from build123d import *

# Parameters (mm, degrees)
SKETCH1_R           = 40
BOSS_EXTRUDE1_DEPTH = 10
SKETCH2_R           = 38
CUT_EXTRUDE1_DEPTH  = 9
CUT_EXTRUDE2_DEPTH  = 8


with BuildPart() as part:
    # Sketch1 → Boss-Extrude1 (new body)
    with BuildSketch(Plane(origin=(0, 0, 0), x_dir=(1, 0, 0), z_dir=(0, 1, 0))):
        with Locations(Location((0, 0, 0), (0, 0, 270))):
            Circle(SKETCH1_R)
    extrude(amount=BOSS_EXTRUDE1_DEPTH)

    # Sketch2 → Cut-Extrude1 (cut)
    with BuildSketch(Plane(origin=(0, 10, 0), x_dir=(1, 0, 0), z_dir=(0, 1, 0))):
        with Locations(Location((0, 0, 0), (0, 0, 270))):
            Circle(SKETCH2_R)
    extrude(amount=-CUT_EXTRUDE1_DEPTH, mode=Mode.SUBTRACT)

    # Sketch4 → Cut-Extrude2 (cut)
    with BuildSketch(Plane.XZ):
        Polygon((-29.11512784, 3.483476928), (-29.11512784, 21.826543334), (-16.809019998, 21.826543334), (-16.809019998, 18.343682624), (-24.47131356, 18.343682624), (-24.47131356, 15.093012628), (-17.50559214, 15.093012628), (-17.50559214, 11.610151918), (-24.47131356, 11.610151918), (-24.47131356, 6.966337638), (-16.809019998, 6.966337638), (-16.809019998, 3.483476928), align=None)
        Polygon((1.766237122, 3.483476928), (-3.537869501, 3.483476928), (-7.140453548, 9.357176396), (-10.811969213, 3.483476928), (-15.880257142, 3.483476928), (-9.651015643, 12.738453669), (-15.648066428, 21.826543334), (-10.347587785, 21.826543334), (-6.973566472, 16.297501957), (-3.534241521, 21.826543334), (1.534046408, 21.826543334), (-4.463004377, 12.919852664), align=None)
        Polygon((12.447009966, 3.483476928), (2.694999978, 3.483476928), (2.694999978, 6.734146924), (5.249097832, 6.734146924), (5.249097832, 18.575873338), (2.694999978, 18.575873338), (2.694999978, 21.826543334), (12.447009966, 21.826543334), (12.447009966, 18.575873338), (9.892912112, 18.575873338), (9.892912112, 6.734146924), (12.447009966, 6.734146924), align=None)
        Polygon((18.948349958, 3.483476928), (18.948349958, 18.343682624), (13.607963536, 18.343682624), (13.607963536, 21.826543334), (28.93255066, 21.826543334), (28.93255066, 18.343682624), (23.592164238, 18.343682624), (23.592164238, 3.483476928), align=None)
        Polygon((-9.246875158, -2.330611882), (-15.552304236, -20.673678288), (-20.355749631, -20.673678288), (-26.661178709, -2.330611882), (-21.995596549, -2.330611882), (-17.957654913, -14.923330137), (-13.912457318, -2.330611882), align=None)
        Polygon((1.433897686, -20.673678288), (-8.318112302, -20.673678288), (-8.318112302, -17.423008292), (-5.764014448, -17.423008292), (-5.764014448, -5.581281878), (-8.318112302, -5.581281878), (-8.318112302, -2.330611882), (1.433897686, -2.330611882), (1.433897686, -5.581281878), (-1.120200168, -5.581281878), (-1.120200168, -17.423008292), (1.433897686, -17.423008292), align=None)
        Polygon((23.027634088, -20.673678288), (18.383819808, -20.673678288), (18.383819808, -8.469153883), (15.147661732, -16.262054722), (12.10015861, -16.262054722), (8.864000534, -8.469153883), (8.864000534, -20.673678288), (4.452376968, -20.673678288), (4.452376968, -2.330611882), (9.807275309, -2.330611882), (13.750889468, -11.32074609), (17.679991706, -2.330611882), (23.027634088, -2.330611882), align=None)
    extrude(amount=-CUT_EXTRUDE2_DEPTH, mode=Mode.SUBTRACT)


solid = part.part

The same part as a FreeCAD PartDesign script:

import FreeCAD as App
import Part
import Sketcher
from FreeCAD import Vector
Q = App.Units.Quantity

doc = App.newDocument("Part")
body = doc.addObject("PartDesign::Body", "Body")

sketch1 = body.newObject("Sketcher::SketchObject", "Sketch")
sketch1.AttachmentSupport = (doc.getObject("XZ_Plane"), [""])
sketch1.MapMode = "FlatFace"
sketch1.addGeometry(Part.Circle(Vector(0, 0, 0), Vector(0, 0, 1), 40), False)
sketch1.addConstraint([
    Sketcher.Constraint("Coincident", 0, 3, -1, 1),
    Sketcher.Constraint("Diameter", 0, Q("80 mm")),
])
pad1 = body.newObject("PartDesign::Pad", "Pad")
pad1.Profile = sketch1
pad1.Length = 10
pad1.Reversed = True

sketch2 = body.newObject("Sketcher::SketchObject", "Sketch001")
sketch2.AttachmentSupport = (doc.getObject("XZ_Plane"), [""])
sketch2.MapMode = "FlatFace"
sketch2.AttachmentOffset = App.Placement(Vector(0, 0, -10), App.Rotation())
sketch2.addGeometry(Part.Circle(Vector(0, 0, 0), Vector(0, 0, 1), 38), False)
sketch2.addConstraint([
    Sketcher.Constraint("Coincident", 0, 3, -1, 1),
    Sketcher.Constraint("Diameter", 0, Q("76 mm")),
])
pocket1 = body.newObject("PartDesign::Pocket", "Pocket")
pocket1.Profile = sketch2
pocket1.Length = 9
pocket1.Reversed = True

sketch3 = body.newObject("Sketcher::SketchObject", "Sketch002")
sketch3.AttachmentSupport = (doc.getObject("XZ_Plane"), [""])
sketch3.MapMode = "FlatFace"
sketch3.addGeometry([
    Part.LineSegment(Vector(-29.1, 21.8, 0), Vector(-29.1, 3.5, 0)),
    Part.LineSegment(Vector(-29.1, 3.5, 0), Vector(-16.8, 3.5, 0)),
    Part.LineSegment(Vector(-16.8, 3.5, 0), Vector(-16.8, 7, 0)),
    Part.LineSegment(Vector(-16.8, 7, 0), Vector(-24.5, 7, 0)),
    Part.LineSegment(Vector(-24.5, 7, 0), Vector(-24.5, 11.6, 0)),
    Part.LineSegment(Vector(-24.5, 11.6, 0), Vector(-17.5, 11.6, 0)),
    Part.LineSegment(Vector(-17.5, 11.6, 0), Vector(-17.5, 15.1, 0)),
    Part.LineSegment(Vector(-17.5, 15.1, 0), Vector(-24.5, 15.1, 0)),
    Part.LineSegment(Vector(-24.5, 15.1, 0), Vector(-24.5, 18.3, 0)),
    Part.LineSegment(Vector(-24.5, 18.3, 0), Vector(-16.8, 18.3, 0)),
    Part.LineSegment(Vector(-16.8, 18.3, 0), Vector(-16.8, 21.8, 0)),
    Part.LineSegment(Vector(-16.8, 21.8, 0), Vector(-29.1, 21.8, 0)),
    Part.LineSegment(Vector(-3.5, 3.5, 0), Vector(1.8, 3.5, 0)),
    Part.LineSegment(Vector(1.8, 3.5, 0), Vector(-4.5, 12.9, 0)),
    Part.LineSegment(Vector(-4.5, 12.9, 0), Vector(1.5, 21.8, 0)),
    Part.LineSegment(Vector(1.5, 21.8, 0), Vector(-3.5, 21.8, 0)),
    Part.LineSegment(Vector(-3.5, 21.8, 0), Vector(-7, 16.3, 0)),
    Part.LineSegment(Vector(-7, 16.3, 0), Vector(-10.3, 21.8, 0)),
    Part.LineSegment(Vector(-10.3, 21.8, 0), Vector(-15.6, 21.8, 0)),
    Part.LineSegment(Vector(-15.6, 21.8, 0), Vector(-9.7, 12.7, 0)),
    Part.LineSegment(Vector(-9.7, 12.7, 0), Vector(-15.9, 3.5, 0)),
    Part.LineSegment(Vector(-15.9, 3.5, 0), Vector(-10.8, 3.5, 0)),
    Part.LineSegment(Vector(-10.8, 3.5, 0), Vector(-7.1, 9.4, 0)),
    Part.LineSegment(Vector(-7.1, 9.4, 0), Vector(-3.5, 3.5, 0)),
    Part.LineSegment(Vector(2.7, 3.5, 0), Vector(12.4, 3.5, 0)),
    Part.LineSegment(Vector(12.4, 3.5, 0), Vector(12.4, 6.7, 0)),
    Part.LineSegment(Vector(12.4, 6.7, 0), Vector(9.9, 6.7, 0)),
    Part.LineSegment(Vector(9.9, 6.7, 0), Vector(9.9, 18.6, 0)),
    Part.LineSegment(Vector(9.9, 18.6, 0), Vector(12.4, 18.6, 0)),
    Part.LineSegment(Vector(12.4, 18.6, 0), Vector(12.4, 21.8, 0)),
    Part.LineSegment(Vector(12.4, 21.8, 0), Vector(2.7, 21.8, 0)),
    Part.LineSegment(Vector(2.7, 21.8, 0), Vector(2.7, 18.6, 0)),
    Part.LineSegment(Vector(2.7, 18.6, 0), Vector(5.2, 18.6, 0)),
    Part.LineSegment(Vector(5.2, 18.6, 0), Vector(5.2, 6.7, 0)),
    Part.LineSegment(Vector(5.2, 6.7, 0), Vector(2.7, 6.7, 0)),
    Part.LineSegment(Vector(2.7, 6.7, 0), Vector(2.7, 3.5, 0)),
    Part.LineSegment(Vector(18.9, 18.3, 0), Vector(18.9, 3.5, 0)),
    Part.LineSegment(Vector(18.9, 3.5, 0), Vector(23.6, 3.5, 0)),
    Part.LineSegment(Vector(23.6, 3.5, 0), Vector(23.6, 18.3, 0)),
    Part.LineSegment(Vector(23.6, 18.3, 0), Vector(28.9, 18.3, 0)),
    Part.LineSegment(Vector(28.9, 18.3, 0), Vector(28.9, 21.8, 0)),
    Part.LineSegment(Vector(28.9, 21.8, 0), Vector(13.6, 21.8, 0)),
    Part.LineSegment(Vector(13.6, 21.8, 0), Vector(13.6, 18.3, 0)),
    Part.LineSegment(Vector(13.6, 18.3, 0), Vector(18.9, 18.3, 0)),
    Part.LineSegment(Vector(-15.6, -20.7, 0), Vector(-9.2, -2.3, 0)),
    Part.LineSegment(Vector(-9.2, -2.3, 0), Vector(-13.9, -2.3, 0)),
    Part.LineSegment(Vector(-13.9, -2.3, 0), Vector(-18, -14.9, 0)),
    Part.LineSegment(Vector(-18, -14.9, 0), Vector(-22, -2.3, 0)),
    Part.LineSegment(Vector(-22, -2.3, 0), Vector(-26.7, -2.3, 0)),
    Part.LineSegment(Vector(-26.7, -2.3, 0), Vector(-20.4, -20.7, 0)),
    Part.LineSegment(Vector(-20.4, -20.7, 0), Vector(-15.6, -20.7, 0)),
    Part.LineSegment(Vector(-8.3, -20.7, 0), Vector(1.4, -20.7, 0)),
    Part.LineSegment(Vector(1.4, -20.7, 0), Vector(1.4, -17.4, 0)),
    Part.LineSegment(Vector(1.4, -17.4, 0), Vector(-1.1, -17.4, 0)),
    Part.LineSegment(Vector(-1.1, -17.4, 0), Vector(-1.1, -5.6, 0)),
    Part.LineSegment(Vector(-1.1, -5.6, 0), Vector(1.4, -5.6, 0)),
    Part.LineSegment(Vector(1.4, -5.6, 0), Vector(1.4, -2.3, 0)),
    Part.LineSegment(Vector(1.4, -2.3, 0), Vector(-8.3, -2.3, 0)),
    Part.LineSegment(Vector(-8.3, -2.3, 0), Vector(-8.3, -5.6, 0)),
    Part.LineSegment(Vector(-8.3, -5.6, 0), Vector(-5.8, -5.6, 0)),
    Part.LineSegment(Vector(-5.8, -5.6, 0), Vector(-5.8, -17.4, 0)),
    Part.LineSegment(Vector(-5.8, -17.4, 0), Vector(-8.3, -17.4, 0)),
    Part.LineSegment(Vector(-8.3, -17.4, 0), Vector(-8.3, -20.7, 0)),
    Part.LineSegment(Vector(18.4, -20.7, 0), Vector(23, -20.7, 0)),
    Part.LineSegment(Vector(23, -20.7, 0), Vector(23, -2.3, 0)),
    Part.LineSegment(Vector(23, -2.3, 0), Vector(17.7, -2.3, 0)),
    Part.LineSegment(Vector(17.7, -2.3, 0), Vector(13.8, -11.3, 0)),
    Part.LineSegment(Vector(13.8, -11.3, 0), Vector(9.8, -2.3, 0)),
    Part.LineSegment(Vector(9.8, -2.3, 0), Vector(4.5, -2.3, 0)),
    Part.LineSegment(Vector(4.5, -2.3, 0), Vector(4.5, -20.7, 0)),
    Part.LineSegment(Vector(4.5, -20.7, 0), Vector(8.9, -20.7, 0)),
    Part.LineSegment(Vector(8.9, -20.7, 0), Vector(8.9, -8.5, 0)),
    Part.LineSegment(Vector(8.9, -8.5, 0), Vector(12.1, -16.3, 0)),
    Part.LineSegment(Vector(12.1, -16.3, 0), Vector(15.1, -16.3, 0)),
    Part.LineSegment(Vector(15.1, -16.3, 0), Vector(18.4, -8.5, 0)),
    Part.LineSegment(Vector(18.4, -8.5, 0), Vector(18.4, -20.7, 0)),
], False)
sketch3.addConstraint([
    Sketcher.Constraint("Coincident", 0, 2, 1, 1),
    Sketcher.Constraint("Coincident", 1, 2, 2, 1),
    Sketcher.Constraint("Coincident", 2, 2, 3, 1),
    Sketcher.Constraint("Coincident", 3, 2, 4, 1),
    Sketcher.Constraint("Coincident", 4, 2, 5, 1),
    Sketcher.Constraint("Coincident", 5, 2, 6, 1),
    Sketcher.Constraint("Coincident", 6, 2, 7, 1),
    Sketcher.Constraint("Coincident", 7, 2, 8, 1),
    Sketcher.Constraint("Coincident", 8, 2, 9, 1),
    Sketcher.Constraint("Coincident", 9, 2, 10, 1),
    Sketcher.Constraint("Coincident", 10, 2, 11, 1),
    Sketcher.Constraint("Coincident", 11, 2, 0, 1),
    Sketcher.Constraint("Coincident", 12, 2, 13, 1),
    Sketcher.Constraint("Coincident", 13, 2, 14, 1),
    Sketcher.Constraint("Coincident", 14, 2, 15, 1),
    Sketcher.Constraint("Coincident", 15, 2, 16, 1),
    Sketcher.Constraint("Coincident", 16, 2, 17, 1),
    Sketcher.Constraint("Coincident", 17, 2, 18, 1),
    Sketcher.Constraint("Coincident", 18, 2, 19, 1),
    Sketcher.Constraint("Coincident", 19, 2, 20, 1),
    Sketcher.Constraint("Coincident", 20, 2, 21, 1),
    Sketcher.Constraint("Coincident", 21, 2, 22, 1),
    Sketcher.Constraint("Coincident", 22, 2, 23, 1),
    Sketcher.Constraint("Coincident", 23, 2, 12, 1),
    Sketcher.Constraint("Coincident", 24, 2, 25, 1),
    Sketcher.Constraint("Coincident", 25, 2, 26, 1),
    Sketcher.Constraint("Coincident", 26, 2, 27, 1),
    Sketcher.Constraint("Coincident", 27, 2, 28, 1),
    Sketcher.Constraint("Coincident", 28, 2, 29, 1),
    Sketcher.Constraint("Coincident", 29, 2, 30, 1),
    Sketcher.Constraint("Coincident", 30, 2, 31, 1),
    Sketcher.Constraint("Coincident", 31, 2, 32, 1),
    Sketcher.Constraint("Coincident", 32, 2, 33, 1),
    Sketcher.Constraint("Coincident", 33, 2, 34, 1),
    Sketcher.Constraint("Coincident", 34, 2, 35, 1),
    Sketcher.Constraint("Coincident", 35, 2, 24, 1),
    Sketcher.Constraint("Coincident", 36, 2, 37, 1),
    Sketcher.Constraint("Coincident", 37, 2, 38, 1),
    Sketcher.Constraint("Coincident", 38, 2, 39, 1),
    Sketcher.Constraint("Coincident", 39, 2, 40, 1),
    Sketcher.Constraint("Coincident", 40, 2, 41, 1),
    Sketcher.Constraint("Coincident", 41, 2, 42, 1),
    Sketcher.Constraint("Coincident", 42, 2, 43, 1),
    Sketcher.Constraint("Coincident", 43, 2, 36, 1),
    Sketcher.Constraint("Coincident", 44, 2, 45, 1),
    Sketcher.Constraint("Coincident", 45, 2, 46, 1),
    Sketcher.Constraint("Coincident", 46, 2, 47, 1),
    Sketcher.Constraint("Coincident", 47, 2, 48, 1),
    Sketcher.Constraint("Coincident", 48, 2, 49, 1),
    Sketcher.Constraint("Coincident", 49, 2, 50, 1),
    Sketcher.Constraint("Coincident", 50, 2, 44, 1),
    Sketcher.Constraint("Coincident", 51, 2, 52, 1),
    Sketcher.Constraint("Coincident", 52, 2, 53, 1),
    Sketcher.Constraint("Coincident", 53, 2, 54, 1),
    Sketcher.Constraint("Coincident", 54, 2, 55, 1),
    Sketcher.Constraint("Coincident", 55, 2, 56, 1),
    Sketcher.Constraint("Coincident", 56, 2, 57, 1),
    Sketcher.Constraint("Coincident", 57, 2, 58, 1),
    Sketcher.Constraint("Coincident", 58, 2, 59, 1),
    Sketcher.Constraint("Coincident", 59, 2, 60, 1),
    Sketcher.Constraint("Coincident", 60, 2, 61, 1),
    Sketcher.Constraint("Coincident", 61, 2, 62, 1),
    Sketcher.Constraint("Coincident", 62, 2, 51, 1),
    Sketcher.Constraint("Coincident", 63, 2, 64, 1),
    Sketcher.Constraint("Coincident", 64, 2, 65, 1),
    Sketcher.Constraint("Coincident", 65, 2, 66, 1),
    Sketcher.Constraint("Coincident", 66, 2, 67, 1),
    Sketcher.Constraint("Coincident", 67, 2, 68, 1),
    Sketcher.Constraint("Coincident", 68, 2, 69, 1),
    Sketcher.Constraint("Coincident", 69, 2, 70, 1),
    Sketcher.Constraint("Coincident", 70, 2, 71, 1),
    Sketcher.Constraint("Coincident", 71, 2, 72, 1),
    Sketcher.Constraint("Coincident", 72, 2, 73, 1),
    Sketcher.Constraint("Coincident", 73, 2, 74, 1),
    Sketcher.Constraint("Coincident", 74, 2, 75, 1),
    Sketcher.Constraint("Coincident", 75, 2, 63, 1),
    Sketcher.Constraint("Vertical", 0),
    Sketcher.Constraint("Horizontal", 1),
    Sketcher.Constraint("Vertical", 2),
    Sketcher.Constraint("Horizontal", 3),
    Sketcher.Constraint("Vertical", 4),
    Sketcher.Constraint("Horizontal", 5),
    Sketcher.Constraint("Vertical", 6),
    Sketcher.Constraint("Horizontal", 7),
    Sketcher.Constraint("Vertical", 8),
    Sketcher.Constraint("Horizontal", 9),
    Sketcher.Constraint("Vertical", 10),
    Sketcher.Constraint("Horizontal", 11),
    Sketcher.Constraint("Horizontal", 12),
    Sketcher.Constraint("Horizontal", 15),
    Sketcher.Constraint("Horizontal", 18),
    Sketcher.Constraint("Horizontal", 21),
    Sketcher.Constraint("Horizontal", 24),
    Sketcher.Constraint("Vertical", 25),
    Sketcher.Constraint("Horizontal", 26),
    Sketcher.Constraint("Vertical", 27),
    Sketcher.Constraint("Horizontal", 28),
    Sketcher.Constraint("Vertical", 29),
    Sketcher.Constraint("Horizontal", 30),
    Sketcher.Constraint("Vertical", 31),
    Sketcher.Constraint("Horizontal", 32),
    Sketcher.Constraint("Vertical", 33),
    Sketcher.Constraint("Horizontal", 34),
    Sketcher.Constraint("Vertical", 35),
    Sketcher.Constraint("Vertical", 36),
    Sketcher.Constraint("Horizontal", 37),
    Sketcher.Constraint("Vertical", 38),
    Sketcher.Constraint("Horizontal", 39),
    Sketcher.Constraint("Vertical", 40),
    Sketcher.Constraint("Horizontal", 41),
    Sketcher.Constraint("Vertical", 42),
    Sketcher.Constraint("Horizontal", 43),
    Sketcher.Constraint("Horizontal", 45),
    Sketcher.Constraint("Horizontal", 48),
    Sketcher.Constraint("Horizontal", 50),
    Sketcher.Constraint("Horizontal", 51),
    Sketcher.Constraint("Vertical", 52),
    Sketcher.Constraint("Horizontal", 53),
    Sketcher.Constraint("Vertical", 54),
    Sketcher.Constraint("Horizontal", 55),
    Sketcher.Constraint("Vertical", 56),
    Sketcher.Constraint("Horizontal", 57),
    Sketcher.Constraint("Vertical", 58),
    Sketcher.Constraint("Horizontal", 59),
    Sketcher.Constraint("Vertical", 60),
    Sketcher.Constraint("Horizontal", 61),
    Sketcher.Constraint("Vertical", 62),
    Sketcher.Constraint("Horizontal", 63),
    Sketcher.Constraint("Vertical", 64),
    Sketcher.Constraint("Horizontal", 65),
    Sketcher.Constraint("Horizontal", 68),
    Sketcher.Constraint("Vertical", 69),
    Sketcher.Constraint("Horizontal", 70),
    Sketcher.Constraint("Vertical", 71),
    Sketcher.Constraint("Horizontal", 73),
    Sketcher.Constraint("Vertical", 75),
    Sketcher.Constraint("Horizontal", 1, 2, 12, 2),
    Sketcher.Constraint("Horizontal", 11, 2, 14, 2),
    Sketcher.Constraint("Horizontal", 15, 2, 17, 2),
    Sketcher.Constraint("Horizontal", 12, 2, 20, 2),
    Sketcher.Constraint("Horizontal", 23, 2, 24, 2),
    Sketcher.Constraint("Horizontal", 18, 2, 29, 2),
    Sketcher.Constraint("Horizontal", 28, 2, 31, 2),
    Sketcher.Constraint("Horizontal", 26, 2, 33, 2),
    Sketcher.Constraint("Horizontal", 35, 2, 36, 2),
    Sketcher.Constraint("Horizontal", 9, 2, 38, 2),
    Sketcher.Constraint("Horizontal", 30, 2, 40, 2),
    Sketcher.Constraint("Horizontal", 39, 2, 42, 2),
    Sketcher.Constraint("Horizontal", 45, 2, 47, 2),
    Sketcher.Constraint("Horizontal", 50, 2, 51, 2),
    Sketcher.Constraint("Horizontal", 48, 2, 56, 2),
    Sketcher.Constraint("Horizontal", 55, 2, 58, 2),
    Sketcher.Constraint("Horizontal", 53, 2, 60, 2),
    Sketcher.Constraint("Horizontal", 62, 2, 63, 2),
    Sketcher.Constraint("Horizontal", 57, 2, 64, 2),
    Sketcher.Constraint("Horizontal", 65, 2, 67, 2),
    Sketcher.Constraint("Horizontal", 63, 2, 69, 2),
    Sketcher.Constraint("Horizontal", 71, 2, 74, 2),
    Sketcher.Constraint("Vertical", 4, 2, 7, 2),
    Sketcher.Constraint("Vertical", 2, 2, 9, 2),
    Sketcher.Constraint("Vertical", 25, 2, 28, 2),
    Sketcher.Constraint("Vertical", 31, 2, 34, 2),
    Sketcher.Constraint("Vertical", 52, 2, 55, 2),
    Sketcher.Constraint("Vertical", 58, 2, 61, 2),
    Sketcher.Constraint("Equal", 15, 21),
    Sketcher.Constraint("Equal", 28, 32),
    Sketcher.Constraint("Equal", 39, 43),
    Sketcher.Constraint("Equal", 45, 48),
    Sketcher.Constraint("Equal", 30, 51),
    Sketcher.Constraint("Equal", 34, 53),
    Sketcher.Constraint("Equal", 55, 59),
    Sketcher.Constraint("Equal", 37, 63),
    Sketcher.Constraint("Equal", 63, 4),
    Sketcher.Constraint("Equal", 2, 6),
    Sketcher.Constraint("Equal", 6, 10),
    Sketcher.Constraint("Equal", 8, 25),
    Sketcher.Constraint("Equal", 25, 29),
    Sketcher.Constraint("Equal", 35, 52),
    Sketcher.Constraint("Equal", 33, 54),
    Sketcher.Constraint("Equal", 52, 56),
    Sketcher.Constraint("Equal", 44, 49),
    Sketcher.Constraint("Equal", 72, 74),
    Sketcher.Constraint("DistanceX", 68, 2, 68, 1, Q("5.354898 mm")),
    Sketcher.Constraint("DistanceX", -1, 1, 30, 2, Q("2.695 mm")),
    Sketcher.Constraint("DistanceX", -1, 1, 70, 2, Q("8.864001 mm")),
    Sketcher.Constraint("DistanceX", 5, 1, 5, 2, Q("6.965721 mm")),
    Sketcher.Constraint("DistanceX", 18, 2, 18, 1, Q("5.300479 mm")),
    Sketcher.Constraint("DistanceX", 24, 1, 24, 2, Q("9.75201 mm")),
    Sketcher.Constraint("DistanceY", 2, 1, 2, 2, Q("3.482861 mm")),
    Sketcher.Constraint("DistanceY", 8, 1, 8, 2, Q("3.25067 mm")),
    Sketcher.Constraint("DistanceY", -1, 1, 16, 2, Q("16.297502 mm")),
    Sketcher.Constraint("DistanceX", 53, 2, -1, 1, Q("1.1202 mm")),
    Sketcher.Constraint("Distance", 16, Q("6.511471 mm")),
    Sketcher.Constraint("Distance", 44, Q("19.39656 mm")),
    Sketcher.Constraint("Distance", 72, Q("8.438129 mm")),
    Sketcher.Constraint("DistanceX", 1, 1, 1, 2, Q("12.306108 mm")),
    Sketcher.Constraint("DistanceX", 3, 2, 3, 1, Q("7.662294 mm")),
    Sketcher.Constraint("DistanceX", 12, 1, 12, 2, Q("5.304107 mm")),
    Sketcher.Constraint("DistanceX", 15, 2, 15, 1, Q("5.068288 mm")),
    Sketcher.Constraint("DistanceX", 26, 2, 26, 1, Q("2.554098 mm")),
    Sketcher.Constraint("DistanceX", 37, 1, 37, 2, Q("4.643814 mm")),
    Sketcher.Constraint("DistanceX", 39, 1, 39, 2, Q("5.340386 mm")),
    Sketcher.Constraint("DistanceX", 45, 2, 45, 1, Q("4.665582 mm")),
    Sketcher.Constraint("DistanceX", 50, 1, 50, 2, Q("4.803445 mm")),
    Sketcher.Constraint("DistanceX", 65, 2, 65, 1, Q("5.347642 mm")),
    Sketcher.Constraint("DistanceX", 70, 1, 70, 2, Q("4.411624 mm")),
    Sketcher.Constraint("DistanceX", 73, 1, 73, 2, Q("3.047503 mm")),
    Sketcher.Constraint("DistanceY", 71, 1, 71, 2, Q("12.204524 mm")),
    Sketcher.Constraint("DistanceX", 1, 2, -1, 1, Q("16.80902 mm")),
    Sketcher.Constraint("DistanceY", -1, 1, 4, 2, Q("11.610152 mm")),
    Sketcher.Constraint("DistanceX", 15, 2, -1, 1, Q("3.534242 mm")),
    Sketcher.Constraint("DistanceX", 21, 2, -1, 1, Q("10.811969 mm")),
    Sketcher.Constraint("DistanceX", 23, 2, -1, 1, Q("3.53787 mm")),
    Sketcher.Constraint("DistanceX", -1, 1, 36, 2, Q("18.94835 mm")),
    Sketcher.Constraint("DistanceY", 44, 2, -1, 1, Q("2.330612 mm")),
    Sketcher.Constraint("DistanceY", 46, 2, -1, 1, Q("14.92333 mm")),
    Sketcher.Constraint("DistanceX", 48, 2, -1, 1, Q("26.661179 mm")),
    Sketcher.Constraint("DistanceX", -1, 1, 65, 2, Q("17.679992 mm")),
    Sketcher.Constraint("DistanceX", -1, 1, 66, 2, Q("13.750889 mm")),
    Sketcher.Constraint("Distance", 13, Q("11.307017 mm")),
    Sketcher.Constraint("Distance", 14, Q("10.737493 mm")),
    Sketcher.Constraint("Distance", 17, Q("6.477215 mm")),
    Sketcher.Constraint("Distance", 19, Q("10.888434 mm")),
    Sketcher.Constraint("Distance", 20, Q("11.156077 mm")),
    Sketcher.Constraint("Distance", 22, Q("6.926787 mm")),
    Sketcher.Constraint("Distance", 23, Q("6.890498 mm")),
    Sketcher.Constraint("Distance", 46, Q("13.226495 mm")),
    Sketcher.Constraint("Distance", 66, Q("9.811236 mm")),
])
pocket2 = body.newObject("PartDesign::Pocket", "Pocket001")
pocket2.Profile = sketch3
pocket2.Length = 8

doc.recompute()
